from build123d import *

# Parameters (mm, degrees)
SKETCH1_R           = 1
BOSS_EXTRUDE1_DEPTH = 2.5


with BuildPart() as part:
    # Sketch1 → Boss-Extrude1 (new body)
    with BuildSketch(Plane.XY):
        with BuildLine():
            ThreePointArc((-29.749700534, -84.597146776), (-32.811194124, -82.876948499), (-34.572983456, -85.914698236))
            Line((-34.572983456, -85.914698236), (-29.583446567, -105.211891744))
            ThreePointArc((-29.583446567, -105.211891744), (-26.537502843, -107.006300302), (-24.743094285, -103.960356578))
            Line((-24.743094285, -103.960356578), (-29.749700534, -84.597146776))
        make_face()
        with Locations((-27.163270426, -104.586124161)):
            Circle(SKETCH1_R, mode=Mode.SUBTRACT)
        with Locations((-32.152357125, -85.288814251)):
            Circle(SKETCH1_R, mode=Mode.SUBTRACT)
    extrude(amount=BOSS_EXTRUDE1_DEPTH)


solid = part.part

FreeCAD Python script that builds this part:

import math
import FreeCAD as App
import Part
import Sketcher

doc = App.newDocument("Part")
body = doc.addObject("PartDesign::Body", "Body")

sketch1 = body.newObject("Sketcher::SketchObject", "Sketch")
sketch1.AttachmentSupport = (doc.getObject("XY_Plane"), [""])
sketch1.MapMode = "FlatFace"
sketch1.addGeometry(Part.ArcOfCircle(Part.Circle(App.Vector(-32.152357, -85.288814, 0), App.Vector(0, 0, 1), 2.500233), math.radians(16.059847), math.radians(194.497059)), False)
sketch1.addGeometry(Part.LineSegment(App.Vector(-34.572983, -85.914698, 0), App.Vector(-29.583447, -105.211892, 0)), False)
sketch1.addGeometry(Part.ArcOfCircle(Part.Circle(App.Vector(-27.16327, -104.586124, 0), App.Vector(0, 0, 1), 2.499768), math.radians(-165.502941), math.radians(14.497059)), False)
sketch1.addGeometry(Part.LineSegment(App.Vector(-24.743094, -103.960357, 0), App.Vector(-29.749701, -84.597147, 0)), False)
sketch1.addGeometry(Part.Circle(App.Vector(-27.16327, -104.586124, 0), App.Vector(0, 0, 1), 1), False)
sketch1.addGeometry(Part.Circle(App.Vector(-32.152357, -85.288814, 0), App.Vector(0, 0, 1), 1), False)
sketch1.addConstraint(Sketcher.Constraint("Tangent", 0, 2, 1, 1))
sketch1.addConstraint(Sketcher.Constraint("Tangent", 1, 2, 2, 1))
sketch1.addConstraint(Sketcher.Constraint("Tangent", 2, 2, 3, 1))
sketch1.addConstraint(Sketcher.Constraint("Coincident", 3, 2, 0, 1))
sketch1.addConstraint(Sketcher.Constraint("Coincident", 4, 3, 2, 3))
sketch1.addConstraint(Sketcher.Constraint("Coincident", 5, 3, 0, 3))
sketch1.addConstraint(Sketcher.Constraint("Equal", 4, 5))
sketch1.addConstraint(Sketcher.Constraint("Parallel", 1, 3))
sketch1.addConstraint(Sketcher.Constraint("Diameter", 4, 2.0))
sketch1.addConstraint(Sketcher.Constraint("Distance", 3, 20.0))
sketch1.addConstraint(Sketcher.Constraint("Radius", 0, 2.500233))
sketch1.addConstraint(Sketcher.Constraint("Radius", 2, 2.499768))
sketch1.addConstraint(Sketcher.Constraint("DistanceY", 0, 2, -1, 1, 85.914698))
sketch1.addConstraint(Sketcher.Constraint("DistanceX", 3, 2, -1, 1, 29.749701))
sketch1.addConstraint(Sketcher.Constraint("DistanceX", 2, 3, -1, 1, 27.16327))
pad1 = body.newObject("PartDesign::Pad", "Pad")
pad1.Profile = sketch1
pad1.Length = 2.5

doc.recompute()
